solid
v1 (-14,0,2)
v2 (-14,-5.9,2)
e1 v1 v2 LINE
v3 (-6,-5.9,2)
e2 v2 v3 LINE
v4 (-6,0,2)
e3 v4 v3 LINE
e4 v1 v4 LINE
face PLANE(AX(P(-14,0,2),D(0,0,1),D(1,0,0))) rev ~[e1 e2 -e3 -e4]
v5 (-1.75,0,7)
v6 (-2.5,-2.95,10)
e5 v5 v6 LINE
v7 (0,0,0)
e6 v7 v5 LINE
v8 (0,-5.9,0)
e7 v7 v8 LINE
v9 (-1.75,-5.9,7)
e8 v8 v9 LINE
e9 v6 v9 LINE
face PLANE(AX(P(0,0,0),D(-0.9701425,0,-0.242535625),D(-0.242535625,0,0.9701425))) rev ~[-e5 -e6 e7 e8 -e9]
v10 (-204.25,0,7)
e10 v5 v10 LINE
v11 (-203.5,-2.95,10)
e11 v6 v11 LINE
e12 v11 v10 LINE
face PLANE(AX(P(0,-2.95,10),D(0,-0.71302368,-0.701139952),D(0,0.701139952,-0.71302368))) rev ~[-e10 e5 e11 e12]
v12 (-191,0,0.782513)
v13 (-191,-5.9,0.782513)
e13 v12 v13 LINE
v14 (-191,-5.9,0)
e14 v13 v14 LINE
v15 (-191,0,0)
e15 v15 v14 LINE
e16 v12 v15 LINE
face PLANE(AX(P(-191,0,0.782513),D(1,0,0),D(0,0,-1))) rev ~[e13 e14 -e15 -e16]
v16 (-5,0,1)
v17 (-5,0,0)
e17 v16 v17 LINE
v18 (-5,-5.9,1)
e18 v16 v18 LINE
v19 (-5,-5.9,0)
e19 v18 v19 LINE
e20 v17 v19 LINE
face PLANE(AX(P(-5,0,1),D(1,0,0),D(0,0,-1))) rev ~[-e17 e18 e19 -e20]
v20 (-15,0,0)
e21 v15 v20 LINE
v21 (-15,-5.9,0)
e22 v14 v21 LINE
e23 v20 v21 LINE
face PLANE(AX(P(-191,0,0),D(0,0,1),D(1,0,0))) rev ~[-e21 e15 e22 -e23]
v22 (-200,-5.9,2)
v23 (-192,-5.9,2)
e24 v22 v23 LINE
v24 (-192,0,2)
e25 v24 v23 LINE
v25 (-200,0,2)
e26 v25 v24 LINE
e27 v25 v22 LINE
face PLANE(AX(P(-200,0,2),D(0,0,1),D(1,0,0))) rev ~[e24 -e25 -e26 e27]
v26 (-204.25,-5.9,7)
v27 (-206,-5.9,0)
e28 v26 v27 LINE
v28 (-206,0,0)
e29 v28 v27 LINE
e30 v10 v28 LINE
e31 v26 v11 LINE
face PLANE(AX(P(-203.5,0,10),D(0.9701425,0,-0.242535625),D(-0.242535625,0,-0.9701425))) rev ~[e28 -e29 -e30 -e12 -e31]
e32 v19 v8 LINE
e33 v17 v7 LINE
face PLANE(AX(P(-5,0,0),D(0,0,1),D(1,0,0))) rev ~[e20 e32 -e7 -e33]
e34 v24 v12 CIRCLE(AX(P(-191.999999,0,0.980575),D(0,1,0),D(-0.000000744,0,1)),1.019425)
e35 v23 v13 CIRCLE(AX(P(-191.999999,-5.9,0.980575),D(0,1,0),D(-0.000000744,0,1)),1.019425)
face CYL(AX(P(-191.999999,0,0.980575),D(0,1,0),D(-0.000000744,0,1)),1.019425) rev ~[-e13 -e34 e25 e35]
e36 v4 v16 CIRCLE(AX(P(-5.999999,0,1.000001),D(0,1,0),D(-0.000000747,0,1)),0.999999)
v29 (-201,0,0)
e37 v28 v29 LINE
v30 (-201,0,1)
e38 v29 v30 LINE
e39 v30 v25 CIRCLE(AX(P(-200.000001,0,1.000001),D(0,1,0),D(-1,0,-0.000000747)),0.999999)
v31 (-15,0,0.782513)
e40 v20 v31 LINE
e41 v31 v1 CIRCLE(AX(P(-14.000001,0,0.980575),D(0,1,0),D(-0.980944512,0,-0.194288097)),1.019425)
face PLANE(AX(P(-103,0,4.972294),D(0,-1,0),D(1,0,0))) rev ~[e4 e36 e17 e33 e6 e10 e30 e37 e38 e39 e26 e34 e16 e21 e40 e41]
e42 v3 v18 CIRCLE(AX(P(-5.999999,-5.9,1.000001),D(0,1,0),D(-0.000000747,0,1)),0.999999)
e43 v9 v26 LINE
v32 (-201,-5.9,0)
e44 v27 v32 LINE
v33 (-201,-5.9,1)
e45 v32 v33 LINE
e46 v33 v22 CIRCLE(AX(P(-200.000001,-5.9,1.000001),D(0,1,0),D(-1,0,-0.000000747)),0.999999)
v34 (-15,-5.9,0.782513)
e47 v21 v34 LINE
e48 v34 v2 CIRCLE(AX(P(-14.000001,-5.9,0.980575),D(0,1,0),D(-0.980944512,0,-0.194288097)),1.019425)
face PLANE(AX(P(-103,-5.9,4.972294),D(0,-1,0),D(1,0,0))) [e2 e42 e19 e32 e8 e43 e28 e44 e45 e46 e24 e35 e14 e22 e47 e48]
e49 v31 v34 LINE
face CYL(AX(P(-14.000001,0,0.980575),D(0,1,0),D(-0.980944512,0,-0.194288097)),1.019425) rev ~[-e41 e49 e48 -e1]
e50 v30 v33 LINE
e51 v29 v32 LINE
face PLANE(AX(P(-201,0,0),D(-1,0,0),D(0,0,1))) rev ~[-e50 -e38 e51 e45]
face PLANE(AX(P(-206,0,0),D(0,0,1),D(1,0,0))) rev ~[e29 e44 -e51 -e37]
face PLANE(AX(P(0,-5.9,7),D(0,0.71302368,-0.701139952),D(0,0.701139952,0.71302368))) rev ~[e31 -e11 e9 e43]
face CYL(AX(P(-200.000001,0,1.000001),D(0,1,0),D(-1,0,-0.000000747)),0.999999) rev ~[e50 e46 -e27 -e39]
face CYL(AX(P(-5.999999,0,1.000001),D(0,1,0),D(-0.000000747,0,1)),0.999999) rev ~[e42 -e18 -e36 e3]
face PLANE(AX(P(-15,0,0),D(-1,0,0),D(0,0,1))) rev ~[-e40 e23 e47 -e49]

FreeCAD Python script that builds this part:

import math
import FreeCAD as App
import Part
import Sketcher

doc = App.newDocument("Part")
body = doc.addObject("PartDesign::Body", "Body")

# Sketch on XZ plane
sketch1 = body.newObject("Sketcher::SketchObject", "Sketch")
sketch1.AttachmentSupport = (doc.getObject("XZ_Plane"), [""])
sketch1.MapMode = "FlatFace"
sketch1.addGeometry([
    Part.LineSegment(App.Vector(-5, 0, 0), App.Vector(0, 0, 0)),  # 0
    Part.LineSegment(App.Vector(0, 0, 0), App.Vector(-2.5, 10, 0)),  # 1
    Part.LineSegment(App.Vector(-2.5, 10, 0), App.Vector(-203.5, 10, 0)),  # 2
    Part.LineSegment(App.Vector(-203.5, 10, 0), App.Vector(-206, 0, 0)),  # 3
    Part.LineSegment(App.Vector(-206, 0, 0), App.Vector(-201, 0, 0)),  # 4
    Part.LineSegment(App.Vector(-201, 0, 0), App.Vector(-201, 1, 0)),  # 5
    Part.ArcOfCircle(Part.Circle(App.Vector(-200, 1, 0), App.Vector(0, 0, 1), 1), math.radians(90), math.radians(180)),  # 6
    Part.LineSegment(App.Vector(-200, 2, 0), App.Vector(-192, 2, 0)),  # 7
    Part.ArcOfCircle(Part.Circle(App.Vector(-192, 1, 0), App.Vector(0, 0, 1), 1), math.radians(-11), math.radians(90)),  # 8
    Part.LineSegment(App.Vector(-191, 0.8, 0), App.Vector(-191, 0, 0)),  # 9
    Part.LineSegment(App.Vector(-191, 0, 0), App.Vector(-15, 0, 0)),  # 10
    Part.LineSegment(App.Vector(-15, 0, 0), App.Vector(-15, 0.8, 0)),  # 11
    Part.ArcOfCircle(Part.Circle(App.Vector(-14, 1, 0), App.Vector(0, 0, 1), 1), math.radians(90), math.radians(191)),  # 12
    Part.LineSegment(App.Vector(-14, 2, 0), App.Vector(-6, 2, 0)),  # 13
    Part.ArcOfCircle(Part.Circle(App.Vector(-6, 1, 0), App.Vector(0, 0, 1), 1), math.radians(0), math.radians(90)),  # 14
    Part.LineSegment(App.Vector(-5, 1, 0), App.Vector(-5, 0, 0)),  # 15
], False)
sketch1.addConstraint([
    Sketcher.Constraint("Coincident", 0, 2, 1, 1),
    Sketcher.Constraint("Coincident", 1, 2, 2, 1),
    Sketcher.Constraint("Coincident", 2, 2, 3, 1),
    Sketcher.Constraint("Coincident", 3, 2, 4, 1),
    Sketcher.Constraint("Coincident", 4, 2, 5, 1),
    Sketcher.Constraint("Tangent", 5, 2, 6, 2),
    Sketcher.Constraint("Tangent", 6, 1, 7, 1),
    Sketcher.Constraint("Tangent", 7, 2, 8, 2),
    Sketcher.Constraint("Coincident", 8, 1, 9, 1),
    Sketcher.Constraint("Coincident", 9, 2, 10, 1),
    Sketcher.Constraint("Coincident", 10, 2, 11, 1),
    Sketcher.Constraint("Coincident", 11, 2, 12, 2),
    Sketcher.Constraint("Tangent", 12, 1, 13, 1),
    Sketcher.Constraint("Tangent", 13, 2, 14, 2),
    Sketcher.Constraint("Tangent", 14, 1, 15, 1),
    Sketcher.Constraint("Coincident", 15, 2, 0, 1),
    Sketcher.Constraint("Horizontal", 0),
    Sketcher.Constraint("Horizontal", 2),
    Sketcher.Constraint("Horizontal", 4),
    Sketcher.Constraint("Vertical", 5),
    Sketcher.Constraint("Horizontal", 7),
    Sketcher.Constraint("Vertical", 9),
    Sketcher.Constraint("Horizontal", 10),
    Sketcher.Constraint("Vertical", 11),
    Sketcher.Constraint("Horizontal", 13),
    Sketcher.Constraint("Vertical", 15),
    Sketcher.Constraint("Coincident", 0, 2, -1, 1),
    Sketcher.Constraint("Equal", 8, 12),
    Sketcher.Constraint("Equal", 6, 14),
    Sketcher.Constraint("PointOnObject", 3, 2, -1),
    Sketcher.Constraint("PointOnObject", 9, 2, -1),
    Sketcher.Constraint("Horizontal", 8, 3, 12, 3),
    Sketcher.Constraint("Horizontal", 8, 1, 11, 2),
    Sketcher.Constraint("Equal", 0, 4),
    Sketcher.Constraint("Equal", 7, 13),
    Sketcher.Constraint("Equal", 1, 3),
    Sketcher.Constraint("Radius", 6, 0.999999),
    Sketcher.Constraint("DistanceX", 0, 1, 0, 2, 5.0),
    Sketcher.Constraint("DistanceX", 2, 2, 2, 1, 201.0),
    Sketcher.Constraint("DistanceX", 7, 1, 7, 2, 8.0),
    Sketcher.Constraint("DistanceX", 10, 1, 10, 2, 176.0),
    Sketcher.Constraint("DistanceY", 5, 1, 5, 2, 1.0),
    Sketcher.Constraint("DistanceX", 6, 3, -1, 1, 200.000001),
    Sketcher.Constraint("DistanceY", -1, 1, 1, 2, 10.0),
    Sketcher.Constraint("Radius", 8, 1.019425),
])
pad1 = body.newObject("PartDesign::Pad", "Pad")
pad1.Profile = sketch1
pad1.Length = 5.9

# Sketch on YZ plane
sketch2 = body.newObject("Sketcher::SketchObject", "Sketch001")
sketch2.AttachmentSupport = (doc.getObject("YZ_Plane"), [""])
sketch2.MapMode = "FlatFace"
sketch2.addGeometry([
    Part.LineSegment(App.Vector(-5.9, 7, 0), App.Vector(-3, 10, 0)),  # 0
    Part.LineSegment(App.Vector(-3, 10, 0), App.Vector(-5.9, 10, 0)),  # 1
    Part.LineSegment(App.Vector(-5.9, 10, 0), App.Vector(-5.9, 7, 0)),  # 2
    Part.LineSegment(App.Vector(0, 10, 0), App.Vector(-3, 10, 0)),  # 3
    Part.LineSegment(App.Vector(-3, 10, 0), App.Vector(0, 7, 0)),  # 4
    Part.LineSegment(App.Vector(0, 7, 0), App.Vector(0, 10, 0)),  # 5
], False)
sketch2.addConstraint([
    Sketcher.Constraint("Coincident", 0, 2, 1, 1),
    Sketcher.Constraint("Coincident", 1, 2, 2, 1),
    Sketcher.Constraint("Coincident", 2, 2, 0, 1),
    Sketcher.Constraint("Coincident", 3, 2, 4, 1),
    Sketcher.Constraint("Coincident", 4, 2, 5, 1),
    Sketcher.Constraint("Coincident", 5, 2, 3, 1),
    Sketcher.Constraint("Horizontal", 1),
    Sketcher.Constraint("Vertical", 2),
    Sketcher.Constraint("Horizontal", 3),
    Sketcher.Constraint("Vertical", 5),
    Sketcher.Constraint("Coincident", 3, 2, 0, 2),
    Sketcher.Constraint("PointOnObject", 4, 2, -2),
    Sketcher.Constraint("Horizontal", 2, 2, 4, 2),
    Sketcher.Constraint("Equal", 1, 3),
    Sketcher.Constraint("DistanceY", 2, 2, 2, 1, 3.0),
    Sketcher.Constraint("DistanceY", -1, 1, 0, 2, 10.0),
    Sketcher.Constraint("DistanceX", 1, 2, 1, 1, 2.95),
])
pocket1 = body.newObject("PartDesign::Pocket", "Pocket")
pocket1.Profile = sketch2
pocket1.Length = 300

doc.recompute()
